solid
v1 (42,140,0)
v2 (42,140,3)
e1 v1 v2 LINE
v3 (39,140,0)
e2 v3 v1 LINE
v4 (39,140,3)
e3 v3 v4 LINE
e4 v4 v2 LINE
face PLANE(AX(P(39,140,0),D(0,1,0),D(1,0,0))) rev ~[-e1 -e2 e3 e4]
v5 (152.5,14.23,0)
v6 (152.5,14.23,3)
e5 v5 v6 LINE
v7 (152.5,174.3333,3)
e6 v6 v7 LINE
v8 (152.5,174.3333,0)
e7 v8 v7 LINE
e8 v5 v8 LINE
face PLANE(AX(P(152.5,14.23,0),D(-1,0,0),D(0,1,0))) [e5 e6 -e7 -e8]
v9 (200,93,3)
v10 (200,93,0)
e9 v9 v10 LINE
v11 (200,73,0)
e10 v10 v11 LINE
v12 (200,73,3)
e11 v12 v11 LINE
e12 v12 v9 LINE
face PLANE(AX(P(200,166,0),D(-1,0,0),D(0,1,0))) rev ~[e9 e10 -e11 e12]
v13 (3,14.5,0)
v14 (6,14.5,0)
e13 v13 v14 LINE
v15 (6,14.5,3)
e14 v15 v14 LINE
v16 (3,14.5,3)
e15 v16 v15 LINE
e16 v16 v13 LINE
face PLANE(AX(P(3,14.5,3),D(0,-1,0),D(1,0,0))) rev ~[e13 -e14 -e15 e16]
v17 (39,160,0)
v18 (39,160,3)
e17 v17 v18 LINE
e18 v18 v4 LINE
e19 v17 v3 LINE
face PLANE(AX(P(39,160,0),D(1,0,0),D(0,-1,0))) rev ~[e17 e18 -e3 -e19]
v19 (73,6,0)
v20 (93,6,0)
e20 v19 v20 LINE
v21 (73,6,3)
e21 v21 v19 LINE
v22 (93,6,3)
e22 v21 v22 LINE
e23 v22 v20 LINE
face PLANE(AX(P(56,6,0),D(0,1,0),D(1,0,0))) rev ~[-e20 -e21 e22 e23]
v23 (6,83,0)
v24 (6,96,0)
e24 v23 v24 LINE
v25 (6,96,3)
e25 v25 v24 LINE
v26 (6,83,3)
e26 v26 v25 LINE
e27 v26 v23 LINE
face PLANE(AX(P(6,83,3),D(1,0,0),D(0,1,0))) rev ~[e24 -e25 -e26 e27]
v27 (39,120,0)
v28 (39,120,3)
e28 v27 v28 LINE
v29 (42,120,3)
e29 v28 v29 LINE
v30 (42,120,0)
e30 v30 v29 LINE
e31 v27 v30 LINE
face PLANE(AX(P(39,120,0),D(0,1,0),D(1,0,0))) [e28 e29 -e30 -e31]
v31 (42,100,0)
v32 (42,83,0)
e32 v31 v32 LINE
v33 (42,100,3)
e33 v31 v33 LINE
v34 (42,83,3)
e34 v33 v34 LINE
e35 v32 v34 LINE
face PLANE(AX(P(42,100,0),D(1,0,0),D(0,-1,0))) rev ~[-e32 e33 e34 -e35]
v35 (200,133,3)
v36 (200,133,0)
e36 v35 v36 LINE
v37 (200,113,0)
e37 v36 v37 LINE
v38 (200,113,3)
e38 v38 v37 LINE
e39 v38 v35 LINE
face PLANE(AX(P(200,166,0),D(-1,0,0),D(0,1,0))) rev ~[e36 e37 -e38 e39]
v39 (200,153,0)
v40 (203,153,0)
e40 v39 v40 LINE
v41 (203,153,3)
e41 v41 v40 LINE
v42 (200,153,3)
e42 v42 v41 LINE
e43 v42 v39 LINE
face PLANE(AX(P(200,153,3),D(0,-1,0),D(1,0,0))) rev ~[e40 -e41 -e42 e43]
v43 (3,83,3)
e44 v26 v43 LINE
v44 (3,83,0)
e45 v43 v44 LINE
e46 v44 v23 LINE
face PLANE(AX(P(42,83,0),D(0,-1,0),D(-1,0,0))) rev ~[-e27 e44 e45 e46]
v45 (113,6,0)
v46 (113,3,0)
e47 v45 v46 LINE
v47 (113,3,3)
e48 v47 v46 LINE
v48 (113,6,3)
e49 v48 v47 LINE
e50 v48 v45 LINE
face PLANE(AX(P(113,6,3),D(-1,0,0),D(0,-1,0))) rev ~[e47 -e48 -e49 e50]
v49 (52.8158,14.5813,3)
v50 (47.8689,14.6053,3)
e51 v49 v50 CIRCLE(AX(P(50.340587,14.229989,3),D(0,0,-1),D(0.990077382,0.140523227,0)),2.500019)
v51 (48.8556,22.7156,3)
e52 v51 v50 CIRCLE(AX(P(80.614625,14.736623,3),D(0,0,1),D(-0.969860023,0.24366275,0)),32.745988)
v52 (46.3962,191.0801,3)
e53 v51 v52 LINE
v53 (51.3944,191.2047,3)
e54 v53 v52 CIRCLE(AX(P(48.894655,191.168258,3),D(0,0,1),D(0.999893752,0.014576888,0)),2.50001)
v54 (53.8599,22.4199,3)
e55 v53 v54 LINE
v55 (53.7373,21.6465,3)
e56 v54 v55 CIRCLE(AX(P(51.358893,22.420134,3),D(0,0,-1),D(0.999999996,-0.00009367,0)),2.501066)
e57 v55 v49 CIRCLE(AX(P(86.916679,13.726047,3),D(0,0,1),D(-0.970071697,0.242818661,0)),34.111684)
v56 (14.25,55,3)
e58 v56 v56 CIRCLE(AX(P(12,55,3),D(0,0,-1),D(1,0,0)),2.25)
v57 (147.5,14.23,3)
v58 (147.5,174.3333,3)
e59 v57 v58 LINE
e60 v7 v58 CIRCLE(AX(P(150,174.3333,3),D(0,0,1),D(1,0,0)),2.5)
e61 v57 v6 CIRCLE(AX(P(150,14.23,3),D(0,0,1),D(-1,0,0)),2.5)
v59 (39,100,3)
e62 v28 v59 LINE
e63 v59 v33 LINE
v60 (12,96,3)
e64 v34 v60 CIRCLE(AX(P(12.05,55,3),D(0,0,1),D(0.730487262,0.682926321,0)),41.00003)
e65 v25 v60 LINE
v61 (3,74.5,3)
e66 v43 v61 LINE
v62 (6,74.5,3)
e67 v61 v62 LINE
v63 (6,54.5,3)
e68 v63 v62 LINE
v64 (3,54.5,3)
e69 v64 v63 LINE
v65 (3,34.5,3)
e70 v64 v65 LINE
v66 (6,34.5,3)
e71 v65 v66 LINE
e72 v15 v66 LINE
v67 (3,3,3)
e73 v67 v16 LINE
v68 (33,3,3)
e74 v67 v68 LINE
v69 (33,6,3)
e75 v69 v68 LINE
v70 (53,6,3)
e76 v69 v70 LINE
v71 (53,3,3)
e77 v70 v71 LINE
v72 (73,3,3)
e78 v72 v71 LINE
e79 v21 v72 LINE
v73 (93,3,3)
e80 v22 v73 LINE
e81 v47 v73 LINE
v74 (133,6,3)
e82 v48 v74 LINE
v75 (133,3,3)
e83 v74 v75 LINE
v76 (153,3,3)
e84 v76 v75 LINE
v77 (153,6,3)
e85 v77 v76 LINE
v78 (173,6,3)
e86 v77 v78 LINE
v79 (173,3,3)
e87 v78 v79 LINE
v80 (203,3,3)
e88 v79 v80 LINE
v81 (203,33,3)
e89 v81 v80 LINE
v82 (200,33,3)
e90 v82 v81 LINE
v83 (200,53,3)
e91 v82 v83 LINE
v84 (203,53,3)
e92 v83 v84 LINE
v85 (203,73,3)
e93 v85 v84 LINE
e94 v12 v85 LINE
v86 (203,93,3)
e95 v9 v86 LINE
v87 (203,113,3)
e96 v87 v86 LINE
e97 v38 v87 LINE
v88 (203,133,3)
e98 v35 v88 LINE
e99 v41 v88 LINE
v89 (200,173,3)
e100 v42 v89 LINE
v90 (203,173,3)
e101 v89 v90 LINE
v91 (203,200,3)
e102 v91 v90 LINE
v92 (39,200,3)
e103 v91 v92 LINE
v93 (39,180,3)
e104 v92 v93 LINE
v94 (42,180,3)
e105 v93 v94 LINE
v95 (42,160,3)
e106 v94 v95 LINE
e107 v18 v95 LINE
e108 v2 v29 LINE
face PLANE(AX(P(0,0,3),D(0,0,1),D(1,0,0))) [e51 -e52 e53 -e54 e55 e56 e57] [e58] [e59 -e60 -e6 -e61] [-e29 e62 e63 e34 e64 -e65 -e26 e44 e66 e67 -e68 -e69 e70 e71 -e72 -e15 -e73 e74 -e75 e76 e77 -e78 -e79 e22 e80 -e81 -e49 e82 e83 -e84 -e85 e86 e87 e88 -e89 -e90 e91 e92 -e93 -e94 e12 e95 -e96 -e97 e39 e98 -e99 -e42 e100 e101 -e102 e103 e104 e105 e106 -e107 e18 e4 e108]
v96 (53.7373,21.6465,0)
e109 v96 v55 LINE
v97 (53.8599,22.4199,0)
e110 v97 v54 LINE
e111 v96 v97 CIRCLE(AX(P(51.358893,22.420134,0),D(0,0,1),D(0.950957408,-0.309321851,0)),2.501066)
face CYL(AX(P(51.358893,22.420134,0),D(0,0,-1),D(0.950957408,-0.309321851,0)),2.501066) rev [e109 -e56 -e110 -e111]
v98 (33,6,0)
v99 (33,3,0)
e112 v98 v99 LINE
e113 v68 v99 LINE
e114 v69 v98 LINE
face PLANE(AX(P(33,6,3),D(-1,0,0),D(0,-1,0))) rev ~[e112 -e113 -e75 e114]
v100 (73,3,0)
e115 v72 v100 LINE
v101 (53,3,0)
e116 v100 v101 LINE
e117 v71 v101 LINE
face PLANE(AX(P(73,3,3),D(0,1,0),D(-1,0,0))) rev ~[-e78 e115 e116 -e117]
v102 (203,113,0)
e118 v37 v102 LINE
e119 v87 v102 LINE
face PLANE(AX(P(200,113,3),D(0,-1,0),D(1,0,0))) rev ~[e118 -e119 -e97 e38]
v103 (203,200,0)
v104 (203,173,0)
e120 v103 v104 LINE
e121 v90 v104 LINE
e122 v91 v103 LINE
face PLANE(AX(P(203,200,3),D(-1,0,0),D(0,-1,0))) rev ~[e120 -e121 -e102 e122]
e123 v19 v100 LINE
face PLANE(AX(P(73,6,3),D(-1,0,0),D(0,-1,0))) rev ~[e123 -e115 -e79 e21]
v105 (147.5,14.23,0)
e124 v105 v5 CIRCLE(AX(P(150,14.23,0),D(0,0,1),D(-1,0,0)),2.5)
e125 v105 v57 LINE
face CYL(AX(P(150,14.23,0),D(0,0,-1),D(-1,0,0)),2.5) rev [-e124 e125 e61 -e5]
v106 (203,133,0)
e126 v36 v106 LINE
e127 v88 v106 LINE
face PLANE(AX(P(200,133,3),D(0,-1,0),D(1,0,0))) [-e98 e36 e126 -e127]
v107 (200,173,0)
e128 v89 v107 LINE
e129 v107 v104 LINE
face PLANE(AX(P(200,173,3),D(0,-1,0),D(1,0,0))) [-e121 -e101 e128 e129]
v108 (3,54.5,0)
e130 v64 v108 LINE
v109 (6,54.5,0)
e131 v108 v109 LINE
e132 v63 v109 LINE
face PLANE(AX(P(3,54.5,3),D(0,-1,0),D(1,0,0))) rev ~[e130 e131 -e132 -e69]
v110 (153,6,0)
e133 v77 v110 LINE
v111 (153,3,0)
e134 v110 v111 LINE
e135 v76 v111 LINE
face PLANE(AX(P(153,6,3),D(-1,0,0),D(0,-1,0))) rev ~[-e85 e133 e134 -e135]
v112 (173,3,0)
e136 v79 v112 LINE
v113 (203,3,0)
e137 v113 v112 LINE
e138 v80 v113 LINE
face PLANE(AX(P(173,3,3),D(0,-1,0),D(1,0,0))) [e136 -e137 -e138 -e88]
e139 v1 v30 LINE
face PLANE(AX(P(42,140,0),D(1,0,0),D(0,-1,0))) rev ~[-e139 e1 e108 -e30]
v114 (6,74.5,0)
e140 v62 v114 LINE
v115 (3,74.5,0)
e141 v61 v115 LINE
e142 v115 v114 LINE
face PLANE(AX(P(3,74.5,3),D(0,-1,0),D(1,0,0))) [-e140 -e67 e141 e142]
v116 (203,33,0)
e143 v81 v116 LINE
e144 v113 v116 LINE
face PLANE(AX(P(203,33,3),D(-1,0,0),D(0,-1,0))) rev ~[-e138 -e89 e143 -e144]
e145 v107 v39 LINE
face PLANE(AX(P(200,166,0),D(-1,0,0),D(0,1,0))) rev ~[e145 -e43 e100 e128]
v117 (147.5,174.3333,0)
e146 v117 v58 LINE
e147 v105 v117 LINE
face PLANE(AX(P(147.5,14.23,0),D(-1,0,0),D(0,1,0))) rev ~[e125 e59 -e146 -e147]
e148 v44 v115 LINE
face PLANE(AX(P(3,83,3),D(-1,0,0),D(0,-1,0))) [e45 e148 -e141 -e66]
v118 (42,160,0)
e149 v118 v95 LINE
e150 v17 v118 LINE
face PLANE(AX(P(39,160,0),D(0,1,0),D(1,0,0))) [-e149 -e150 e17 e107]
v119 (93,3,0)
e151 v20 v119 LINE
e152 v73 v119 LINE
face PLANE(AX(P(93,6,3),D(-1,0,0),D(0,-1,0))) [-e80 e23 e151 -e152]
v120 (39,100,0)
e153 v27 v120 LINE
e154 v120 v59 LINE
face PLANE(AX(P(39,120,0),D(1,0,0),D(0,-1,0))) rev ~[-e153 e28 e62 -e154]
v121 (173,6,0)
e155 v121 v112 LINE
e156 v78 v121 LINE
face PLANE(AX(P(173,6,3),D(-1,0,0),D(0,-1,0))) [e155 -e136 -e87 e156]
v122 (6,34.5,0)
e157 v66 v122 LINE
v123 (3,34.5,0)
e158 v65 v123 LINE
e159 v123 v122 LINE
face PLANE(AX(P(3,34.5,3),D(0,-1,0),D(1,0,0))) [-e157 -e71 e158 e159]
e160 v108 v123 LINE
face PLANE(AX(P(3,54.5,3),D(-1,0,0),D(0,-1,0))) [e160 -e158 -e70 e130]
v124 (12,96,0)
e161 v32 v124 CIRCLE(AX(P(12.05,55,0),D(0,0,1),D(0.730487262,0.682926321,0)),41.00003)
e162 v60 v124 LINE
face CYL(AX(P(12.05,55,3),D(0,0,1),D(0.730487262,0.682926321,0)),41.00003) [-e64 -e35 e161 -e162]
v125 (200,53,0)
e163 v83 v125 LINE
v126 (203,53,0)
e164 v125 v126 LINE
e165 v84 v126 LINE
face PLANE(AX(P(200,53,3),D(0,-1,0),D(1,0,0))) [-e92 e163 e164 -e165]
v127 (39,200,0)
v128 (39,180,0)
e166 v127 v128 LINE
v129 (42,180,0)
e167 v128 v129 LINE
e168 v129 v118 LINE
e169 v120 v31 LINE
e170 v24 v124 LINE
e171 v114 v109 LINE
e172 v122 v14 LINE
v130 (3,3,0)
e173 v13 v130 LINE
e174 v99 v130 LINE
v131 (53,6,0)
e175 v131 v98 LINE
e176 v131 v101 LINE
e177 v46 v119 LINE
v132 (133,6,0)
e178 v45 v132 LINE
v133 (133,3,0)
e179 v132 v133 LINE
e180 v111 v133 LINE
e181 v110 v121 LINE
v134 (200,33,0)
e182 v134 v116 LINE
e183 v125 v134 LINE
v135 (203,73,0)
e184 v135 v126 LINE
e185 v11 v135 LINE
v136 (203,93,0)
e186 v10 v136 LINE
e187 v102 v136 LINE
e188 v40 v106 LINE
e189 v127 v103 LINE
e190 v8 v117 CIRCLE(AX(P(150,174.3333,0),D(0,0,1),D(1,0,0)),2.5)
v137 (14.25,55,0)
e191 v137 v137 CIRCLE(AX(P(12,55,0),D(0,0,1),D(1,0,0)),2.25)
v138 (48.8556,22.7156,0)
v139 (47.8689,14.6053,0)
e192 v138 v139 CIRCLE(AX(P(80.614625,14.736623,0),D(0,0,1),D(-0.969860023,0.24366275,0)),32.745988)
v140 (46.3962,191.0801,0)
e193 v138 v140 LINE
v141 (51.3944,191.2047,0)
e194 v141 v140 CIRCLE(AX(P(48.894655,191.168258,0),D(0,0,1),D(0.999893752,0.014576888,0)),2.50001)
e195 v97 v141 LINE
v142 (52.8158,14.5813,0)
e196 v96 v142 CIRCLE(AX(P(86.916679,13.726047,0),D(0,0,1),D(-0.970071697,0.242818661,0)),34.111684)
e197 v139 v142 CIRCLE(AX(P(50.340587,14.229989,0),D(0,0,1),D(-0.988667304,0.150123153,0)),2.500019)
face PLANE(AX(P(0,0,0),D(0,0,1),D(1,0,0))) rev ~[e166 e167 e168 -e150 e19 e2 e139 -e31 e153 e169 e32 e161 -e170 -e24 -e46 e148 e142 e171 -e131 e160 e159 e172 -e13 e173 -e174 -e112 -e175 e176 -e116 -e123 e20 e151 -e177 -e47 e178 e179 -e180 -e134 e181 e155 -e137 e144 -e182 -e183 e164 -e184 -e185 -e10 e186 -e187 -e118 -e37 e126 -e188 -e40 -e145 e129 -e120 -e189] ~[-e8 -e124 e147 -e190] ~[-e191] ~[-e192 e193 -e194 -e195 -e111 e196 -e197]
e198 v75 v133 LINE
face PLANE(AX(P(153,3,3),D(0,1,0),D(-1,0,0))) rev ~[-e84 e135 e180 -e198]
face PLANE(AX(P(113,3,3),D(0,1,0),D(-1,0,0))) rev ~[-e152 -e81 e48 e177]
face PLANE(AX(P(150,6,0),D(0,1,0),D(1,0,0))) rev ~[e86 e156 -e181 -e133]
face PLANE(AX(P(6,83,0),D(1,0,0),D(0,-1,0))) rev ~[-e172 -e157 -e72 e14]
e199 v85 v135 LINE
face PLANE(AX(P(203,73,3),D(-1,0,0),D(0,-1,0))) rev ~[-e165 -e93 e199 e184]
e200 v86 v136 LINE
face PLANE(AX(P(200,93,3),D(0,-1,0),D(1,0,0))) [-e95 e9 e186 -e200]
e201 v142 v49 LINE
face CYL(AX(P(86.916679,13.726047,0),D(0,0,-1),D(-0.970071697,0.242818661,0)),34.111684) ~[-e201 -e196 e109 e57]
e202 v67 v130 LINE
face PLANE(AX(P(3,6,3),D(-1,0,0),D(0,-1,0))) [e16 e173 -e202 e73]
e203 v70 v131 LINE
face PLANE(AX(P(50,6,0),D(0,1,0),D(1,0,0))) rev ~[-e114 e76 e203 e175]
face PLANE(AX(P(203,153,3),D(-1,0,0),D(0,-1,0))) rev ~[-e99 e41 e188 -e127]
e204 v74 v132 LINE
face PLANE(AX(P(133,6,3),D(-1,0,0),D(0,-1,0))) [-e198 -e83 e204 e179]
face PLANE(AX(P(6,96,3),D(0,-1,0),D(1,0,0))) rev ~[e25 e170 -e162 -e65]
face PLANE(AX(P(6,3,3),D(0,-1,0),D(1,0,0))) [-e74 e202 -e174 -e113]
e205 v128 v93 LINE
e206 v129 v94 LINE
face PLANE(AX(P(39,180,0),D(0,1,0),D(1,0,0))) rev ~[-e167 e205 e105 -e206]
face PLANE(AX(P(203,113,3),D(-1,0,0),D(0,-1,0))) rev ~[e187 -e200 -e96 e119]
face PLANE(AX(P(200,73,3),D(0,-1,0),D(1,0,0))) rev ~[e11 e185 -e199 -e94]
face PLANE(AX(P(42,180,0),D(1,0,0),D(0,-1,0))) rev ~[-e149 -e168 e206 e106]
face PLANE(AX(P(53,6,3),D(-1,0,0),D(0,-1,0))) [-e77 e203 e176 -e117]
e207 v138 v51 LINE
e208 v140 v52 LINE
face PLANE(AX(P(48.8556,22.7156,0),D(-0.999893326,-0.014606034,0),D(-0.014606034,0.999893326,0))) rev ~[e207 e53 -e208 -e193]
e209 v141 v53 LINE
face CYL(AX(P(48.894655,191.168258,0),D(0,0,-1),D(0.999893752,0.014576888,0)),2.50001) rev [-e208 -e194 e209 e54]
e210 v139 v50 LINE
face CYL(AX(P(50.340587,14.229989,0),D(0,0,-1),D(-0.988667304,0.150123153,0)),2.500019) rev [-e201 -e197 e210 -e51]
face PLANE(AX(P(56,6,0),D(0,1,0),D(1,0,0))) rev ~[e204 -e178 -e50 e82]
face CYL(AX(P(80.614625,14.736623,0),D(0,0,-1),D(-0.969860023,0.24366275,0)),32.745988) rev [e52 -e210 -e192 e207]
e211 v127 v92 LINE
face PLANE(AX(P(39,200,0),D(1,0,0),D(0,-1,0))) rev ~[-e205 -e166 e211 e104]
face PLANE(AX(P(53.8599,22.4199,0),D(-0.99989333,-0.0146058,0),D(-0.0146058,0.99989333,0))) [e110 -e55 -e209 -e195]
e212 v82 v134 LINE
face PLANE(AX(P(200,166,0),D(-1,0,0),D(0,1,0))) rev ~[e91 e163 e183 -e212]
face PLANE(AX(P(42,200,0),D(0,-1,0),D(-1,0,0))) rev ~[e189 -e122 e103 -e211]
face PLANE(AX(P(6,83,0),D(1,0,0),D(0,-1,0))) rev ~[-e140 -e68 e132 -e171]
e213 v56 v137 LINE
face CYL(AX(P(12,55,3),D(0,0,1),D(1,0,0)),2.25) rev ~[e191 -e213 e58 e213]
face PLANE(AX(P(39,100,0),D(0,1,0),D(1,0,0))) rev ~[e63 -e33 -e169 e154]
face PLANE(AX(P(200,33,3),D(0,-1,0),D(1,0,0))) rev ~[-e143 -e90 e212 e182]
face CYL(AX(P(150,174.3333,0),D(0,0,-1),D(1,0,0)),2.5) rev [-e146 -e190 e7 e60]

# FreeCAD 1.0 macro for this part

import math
import FreeCAD as App
import Part
import Sketcher
Q = App.Units.Quantity


def add_polygon(sketch, points):
    """Adds a closed chain of lines whose ends are joined by coincident constraints."""
    first, n = sketch.GeometryCount, len(points)
    for a, b in zip(points, points[1:] + points[:1]):
        sketch.addGeometry(Part.LineSegment(App.Vector(*a, 0), App.Vector(*b, 0)), False)
    for i in range(n):
        sketch.addConstraint(Sketcher.Constraint("Coincident", first + i, 2, first + (i + 1) % n, 1))

doc = App.newDocument("Part")
body = doc.addObject("PartDesign::Body", "Body")

# Sketch on XY plane
sketch1 = doc.addObject("Sketcher::SketchObject", "Sketch")
body.addObject(sketch1)
sketch1.AttachmentSupport = (doc.XY_Plane, [""])
sketch1.MapMode = "FlatFace"
add_polygon(sketch1, [(6, 83), (6, 6), (200, 6), (200, 200), (39, 200), (39, 180), (42, 180), (42, 160), (39, 160), (39, 140), (42, 140), (42, 120), (39, 120), (39, 100), (42, 100), (42, 83)])  # lines 0-15
sketch1.addGeometry(Part.ArcOfCircle(Part.Circle(App.Vector(50.3, 14.2, 0), App.Vector(0, 0, 1), 2.5), math.radians(171), math.radians(368)), False)  # 16
sketch1.addGeometry(Part.ArcOfCircle(Part.Circle(App.Vector(80.6, 14.7, 0), App.Vector(0, 0, 1), 32.7), math.radians(165.9), math.radians(180.23)), False)  # 17
sketch1.addGeometry(Part.LineSegment(App.Vector(48.9, 22.7, 0), App.Vector(46.4, 191.1, 0)), False)  # 18
sketch1.addGeometry(Part.ArcOfCircle(Part.Circle(App.Vector(48.9, 191.2, 0), App.Vector(0, 0, 1), 2.5), math.radians(1), math.radians(182)), False)  # 19
sketch1.addGeometry(Part.LineSegment(App.Vector(51.4, 191.2, 0), App.Vector(53.9, 22.4, 0)), False)  # 20
sketch1.addGeometry(Part.ArcOfCircle(Part.Circle(App.Vector(51.4, 22.4, 0), App.Vector(0, 0, 1), 2.5), math.radians(-18.02), math.radians(-0.01)), False)  # 21
sketch1.addGeometry(Part.ArcOfCircle(Part.Circle(App.Vector(86.9, 13.7, 0), App.Vector(0, 0, 1), 34.1), math.radians(166.57), math.radians(178.56)), False)  # 22
sketch1.addGeometry(Part.ArcOfCircle(Part.Circle(App.Vector(150, 174.3, 0), App.Vector(0, 0, 1), 2.5), math.radians(0), math.radians(180)), False)  # 23
sketch1.addGeometry(Part.LineSegment(App.Vector(152.5, 174.3, 0), App.Vector(152.5, 14.2, 0)), False)  # 24
sketch1.addGeometry(Part.ArcOfCircle(Part.Circle(App.Vector(150, 14.2, 0), App.Vector(0, 0, 1), 2.5), math.radians(180), math.radians(360)), False)  # 25
sketch1.addGeometry(Part.LineSegment(App.Vector(147.5, 14.2, 0), App.Vector(147.5, 174.3, 0)), False)  # 26
sketch1.addConstraint([
    Sketcher.Constraint("Coincident", 16, 1, 17, 2),
    Sketcher.Constraint("Coincident", 17, 1, 18, 1),
    Sketcher.Constraint("Coincident", 18, 2, 19, 2),
    Sketcher.Constraint("Tangent", 19, 1, 20, 1),
    Sketcher.Constraint("Coincident", 20, 2, 21, 2),
    Sketcher.Constraint("Coincident", 21, 1, 22, 1),
    Sketcher.Constraint("Coincident", 22, 2, 16, 2),
    Sketcher.Constraint("Tangent", 23, 1, 24, 1),
    Sketcher.Constraint("Tangent", 24, 2, 25, 2),
    Sketcher.Constraint("Tangent", 25, 1, 26, 1),
    Sketcher.Constraint("Tangent", 26, 2, 23, 2),
    Sketcher.Constraint("Vertical", 0),
    Sketcher.Constraint("Horizontal", 1),
    Sketcher.Constraint("Vertical", 2),
    Sketcher.Constraint("Horizontal", 3),
    Sketcher.Constraint("Vertical", 4),
    Sketcher.Constraint("Horizontal", 5),
    Sketcher.Constraint("Vertical", 6),
    Sketcher.Constraint("Horizontal", 7),
    Sketcher.Constraint("Vertical", 8),
    Sketcher.Constraint("Horizontal", 9),
    Sketcher.Constraint("Vertical", 10),
    Sketcher.Constraint("Horizontal", 11),
    Sketcher.Constraint("Vertical", 12),
    Sketcher.Constraint("Horizontal", 13),
    Sketcher.Constraint("Vertical", 14),
    Sketcher.Constraint("Horizontal", 15),
    Sketcher.Constraint("Vertical", 24),
    Sketcher.Constraint("Vertical", 26),
    Sketcher.Constraint("Equal", 16, 19),
    Sketcher.Constraint("Equal", 19, 23),
    Sketcher.Constraint("Parallel", 18, 20),
    Sketcher.Constraint("Horizontal", 16, 3, 25, 3),
    Sketcher.Constraint("Vertical", 4, 2, 7, 2),
    Sketcher.Constraint("Vertical", 6, 2, 9, 2),
    Sketcher.Constraint("Vertical", 8, 2, 11, 2),
    Sketcher.Constraint("Vertical", 10, 2, 13, 2),
    Sketcher.Constraint("Equal", 1, 2),
    Sketcher.Constraint("Equal", 4, 6),
    Sketcher.Constraint("Equal", 6, 8),
    Sketcher.Constraint("Equal", 8, 10),
    Sketcher.Constraint("Equal", 10, 12),
    Sketcher.Constraint("DistanceX", 1, 1, 1, 2, Q("194 mm")),
    Sketcher.Constraint("Radius", 16, Q("2.5 mm")),
    Sketcher.Constraint("DistanceX", 3, 2, 3, 1, Q("161 mm")),
    Sketcher.Constraint("DistanceX", 5, 1, 5, 2, Q("3 mm")),
    Sketcher.Constraint("DistanceY", 0, 2, 0, 1, Q("77 mm")),
    Sketcher.Constraint("DistanceY", 4, 2, 4, 1, Q("20 mm")),
    Sketcher.Constraint("DistanceX", -1, 1, 23, 3, Q("150 mm")),
    Sketcher.Constraint("DistanceX", -1, 1, 0, 2, Q("6 mm")),
    Sketcher.Constraint("DistanceY", -1, 1, 0, 2, Q("6 mm")),
    Sketcher.Constraint("Radius", 17, Q("32.746 mm")),
    Sketcher.Constraint("Radius", 21, Q("2.501 mm")),
    Sketcher.Constraint("Radius", 22, Q("34.1117 mm")),
    Sketcher.Constraint("DistanceY", -1, 1, 16, 3, Q("14.23 mm")),
    Sketcher.Constraint("DistanceY", -1, 1, 18, 2, Q("191.08 mm")),
    Sketcher.Constraint("DistanceX", -1, 1, 20, 2, Q("53.86 mm")),
    Sketcher.Constraint("DistanceY", -1, 1, 20, 2, Q("22.42 mm")),
    Sketcher.Constraint("DistanceX", 19, 3, 17, 3, Q("31.72 mm")),
    Sketcher.Constraint("DistanceX", 16, 1, 21, 3, Q("3.49 mm")),
    Sketcher.Constraint("DistanceY", 24, 2, 24, 1, Q("160.1033 mm")),
    Sketcher.Constraint("DistanceY", -1, 1, 22, 3, Q("13.726 mm")),
    Sketcher.Constraint("DistanceX", 16, 3, 17, 3, Q("30.274 mm")),
    Sketcher.Constraint("DistanceY", 21, 3, 19, 3, Q("168.748 mm")),
    Sketcher.Constraint("DistanceX", 17, 3, 22, 3, Q("6.302 mm")),
    Sketcher.Constraint("DistanceY", 22, 3, 21, 3, Q("8.694 mm")),
    Sketcher.Constraint("DistanceY", 21, 1, 17, 1, Q("1.069 mm")),
])
pad1 = doc.addObject("PartDesign::Pad", "Pad")
body.addObject(pad1)
pad1.Profile = sketch1
pad1.Length = 3

# Sketch on XY plane
sketch2 = doc.addObject("Sketcher::SketchObject", "Sketch001")
body.addObject(sketch2)
sketch2.AttachmentSupport = (doc.XY_Plane, [""])
sketch2.MapMode = "FlatFace"
sketch2.AttachmentOffset = App.Placement(App.Vector(0, 0, 3), App.Rotation())
add_polygon(sketch2, [(200, 3), (200, 6), (173, 6), (173, 3)])  # lines 0-3
add_polygon(sketch2, [(153, 3), (153, 6), (133, 6), (133, 3)])  # lines 4-7
add_polygon(sketch2, [(113, 3), (113, 6), (93, 6), (93, 3)])  # lines 8-11
add_polygon(sketch2, [(73, 3), (73, 6), (53, 6), (53, 3)])  # lines 12-15
add_polygon(sketch2, [(33, 3), (33, 6), (6, 6), (6, 3)])  # lines 16-19
sketch2.addConstraint([
    Sketcher.Constraint("Vertical", 0),
    Sketcher.Constraint("Horizontal", 1),
    Sketcher.Constraint("Vertical", 2),
    Sketcher.Constraint("Horizontal", 3),
    Sketcher.Constraint("Vertical", 4),
    Sketcher.Constraint("Horizontal", 5),
    Sketcher.Constraint("Vertical", 6),
    Sketcher.Constraint("Horizontal", 7),
    Sketcher.Constraint("Vertical", 8),
    Sketcher.Constraint("Horizontal", 9),
    Sketcher.Constraint("Vertical", 10),
    Sketcher.Constraint("Horizontal", 11),
    Sketcher.Constraint("Vertical", 12),
    Sketcher.Constraint("Horizontal", 13),
    Sketcher.Constraint("Vertical", 14),
    Sketcher.Constraint("Horizontal", 15),
    Sketcher.Constraint("Vertical", 16),
    Sketcher.Constraint("Horizontal", 17),
    Sketcher.Constraint("Vertical", 18),
    Sketcher.Constraint("Horizontal", 19),
    Sketcher.Constraint("Horizontal", 1, 2, 4, 2),
    Sketcher.Constraint("Horizontal", 3, 2, 6, 2),
    Sketcher.Constraint("Horizontal", 5, 2, 8, 2),
    Sketcher.Constraint("Horizontal", 7, 2, 10, 2),
    Sketcher.Constraint("Horizontal", 9, 2, 12, 2),
    Sketcher.Constraint("Horizontal", 11, 2, 14, 2),
    Sketcher.Constraint("Horizontal", 13, 2, 16, 2),
    Sketcher.Constraint("Horizontal", 15, 2, 18, 2),
    Sketcher.Constraint("Equal", 7, 9),
    Sketcher.Constraint("Equal", 11, 13),
    Sketcher.Constraint("Equal", 3, 17),
    Sketcher.Constraint("DistanceX", 1, 2, 1, 1, Q("27 mm")),
    Sketcher.Constraint("DistanceX", 5, 2, 5, 1, Q("20 mm")),
    Sketcher.Constraint("DistanceY", 0, 1, 0, 2, Q("3 mm")),
    Sketcher.Constraint("DistanceX", -1, 1, 0, 2, Q("200 mm")),
    Sketcher.Constraint("DistanceY", -1, 1, 0, 2, Q("6 mm")),
    Sketcher.Constraint("DistanceX", -1, 1, 4, 2, Q("153 mm")),
    Sketcher.Constraint("DistanceX", -1, 1, 8, 2, Q("113 mm")),
    Sketcher.Constraint("DistanceX", -1, 1, 12, 2, Q("73 mm")),
    Sketcher.Constraint("DistanceX", -1, 1, 16, 2, Q("33 mm")),
])
pad2 = doc.addObject("PartDesign::Pad", "Pad001")
body.addObject(pad2)
pad2.Profile = sketch2
pad2.Length = 3
pad2.Reversed = True

# Sketch on XY plane
sketch3 = doc.addObject("Sketcher::SketchObject", "Sketch002")
body.addObject(sketch3)
sketch3.AttachmentSupport = (doc.XY_Plane, [""])
sketch3.MapMode = "FlatFace"
sketch3.AttachmentOffset = App.Placement(App.Vector(0, 0, 3), App.Rotation())
add_polygon(sketch3, [(3, 3), (6, 3), (6, 14.5), (3, 14.5)])  # lines 0-3
add_polygon(sketch3, [(6, 74.5), (6, 83), (3, 83), (3, 74.5)])  # lines 4-7
add_polygon(sketch3, [(3, 34.5), (6, 34.5), (6, 54.5), (3, 54.5)])  # lines 8-11
sketch3.addConstraint([
    Sketcher.Constraint("Horizontal", 0),
    Sketcher.Constraint("Vertical", 1),
    Sketcher.Constraint("Horizontal", 2),
    Sketcher.Constraint("Vertical", 3),
    Sketcher.Constraint("Vertical", 4),
    Sketcher.Constraint("Horizontal", 5),
    Sketcher.Constraint("Vertical", 6),
    Sketcher.Constraint("Horizontal", 7),
    Sketcher.Constraint("Horizontal", 8),
    Sketcher.Constraint("Vertical", 9),
    Sketcher.Constraint("Horizontal", 10),
    Sketcher.Constraint("Vertical", 11),
    Sketcher.Constraint("Vertical", 1, 2, 4, 2),
    Sketcher.Constraint("Vertical", 3, 2, 5, 2),
    Sketcher.Constraint("Vertical", 7, 2, 8, 2),
    Sketcher.Constraint("Vertical", 6, 2, 10, 2),
    Sketcher.Constraint("DistanceX", 0, 1, 0, 2, Q("3 mm")),
    Sketcher.Constraint("DistanceY", -1, 1, 0, 2, Q("3 mm")),
    Sketcher.Constraint("DistanceX", -1, 1, 2, 2, Q("3 mm")),
    Sketcher.Constraint("DistanceY", 9, 1, 9, 2, Q("20 mm")),
    Sketcher.Constraint("DistanceY", 1, 1, 1, 2, Q("11.5 mm")),
    Sketcher.Constraint("DistanceY", 4, 1, 4, 2, Q("8.5 mm")),
    Sketcher.Constraint("DistanceY", -1, 1, 4, 2, Q("83 mm")),
    Sketcher.Constraint("DistanceY", 1, 2, 8, 2, Q("20 mm")),
])
pad3 = doc.addObject("PartDesign::Pad", "Pad002")
body.addObject(pad3)
pad3.Profile = sketch3
pad3.Length = 3
pad3.Reversed = True

# Sketch on XY plane
sketch4 = doc.addObject("Sketcher::SketchObject", "Sketch003")
body.addObject(sketch4)
sketch4.AttachmentSupport = (doc.XY_Plane, [""])
sketch4.MapMode = "FlatFace"
sketch4.AttachmentOffset = App.Placement(App.Vector(0, 0, 3), App.Rotation())
add_polygon(sketch4, [(200, 33), (200, 3), (203, 3), (203, 33)])  # lines 0-3
add_polygon(sketch4, [(200, 73), (200, 53), (203, 53), (203, 73)])  # lines 4-7
add_polygon(sketch4, [(200, 113), (200, 93), (203, 93), (203, 113)])  # lines 8-11
add_polygon(sketch4, [(200, 153), (200, 133), (203, 133), (203, 153)])  # lines 12-15
add_polygon(sketch4, [(200, 200), (200, 173), (203, 173), (203, 200)])  # lines 16-19
sketch4.addConstraint([
    Sketcher.Constraint("Vertical", 0),
    Sketcher.Constraint("Horizontal", 1),
    Sketcher.Constraint("Vertical", 2),
    Sketcher.Constraint("Horizontal", 3),
    Sketcher.Constraint("Vertical", 4),
    Sketcher.Constraint("Horizontal", 5),
    Sketcher.Constraint("Vertical", 6),
    Sketcher.Constraint("Horizontal", 7),
    Sketcher.Constraint("Vertical", 8),
    Sketcher.Constraint("Horizontal", 9),
    Sketcher.Constraint("Vertical", 10),
    Sketcher.Constraint("Horizontal", 11),
    Sketcher.Constraint("Vertical", 12),
    Sketcher.Constraint("Horizontal", 13),
    Sketcher.Constraint("Vertical", 14),
    Sketcher.Constraint("Horizontal", 15),
    Sketcher.Constraint("Vertical", 16),
    Sketcher.Constraint("Horizontal", 17),
    Sketcher.Constraint("Vertical", 18),
    Sketcher.Constraint("Horizontal", 19),
    Sketcher.Constraint("Vertical", 3, 2, 4, 2),
    Sketcher.Constraint("Vertical", 2, 2, 5, 2),
    Sketcher.Constraint("Vertical", 7, 2, 8, 2),
    Sketcher.Constraint("Vertical", 6, 2, 9, 2),
    Sketcher.Constraint("Vertical", 11, 2, 12, 2),
    Sketcher.Constraint("Vertical", 10, 2, 13, 2),
    Sketcher.Constraint("Vertical", 15, 2, 16, 2),
    Sketcher.Constraint("Vertical", 14, 2, 17, 2),
    Sketcher.Constraint("Equal", 6, 8),
    Sketcher.Constraint("Equal", 10, 12),
    Sketcher.Constraint("DistanceX", 1, 1, 1, 2, Q("3 mm")),
    Sketcher.Constraint("DistanceY", 0, 2, 0, 1, Q("30 mm")),
    Sketcher.Constraint("DistanceY", 4, 2, 4, 1, Q("20 mm")),
    Sketcher.Constraint("DistanceY", 16, 2, 16, 1, Q("27 mm")),
    Sketcher.Constraint("DistanceX", -1, 1, 0, 2, Q("200 mm")),
    Sketcher.Constraint("DistanceY", -1, 1, 0, 2, Q("3 mm")),
    Sketcher.Constraint("DistanceY", -1, 1, 4, 2, Q("53 mm")),
    Sketcher.Constraint("DistanceY", -1, 1, 8, 2, Q("93 mm")),
    Sketcher.Constraint("DistanceY", -1, 1, 12, 2, Q("133 mm")),
    Sketcher.Constraint("DistanceY", -1, 1, 16, 2, Q("173 mm")),
])
pad4 = doc.addObject("PartDesign::Pad", "Pad003")
body.addObject(pad4)
pad4.Profile = sketch4
pad4.Length = 3
pad4.Reversed = True

# Sketch on XY plane
sketch5 = doc.addObject("Sketcher::SketchObject", "Sketch004")
body.addObject(sketch5)
sketch5.AttachmentSupport = (doc.XY_Plane, [""])
sketch5.MapMode = "FlatFace"
sketch5.AttachmentOffset = App.Placement(App.Vector(0, 0, 3), App.Rotation())
sketch5.addGeometry(Part.Circle(App.Vector(12, 55, 0), App.Vector(0, 0, 1), 2.2), False)
sketch5.addConstraint([
    Sketcher.Constraint("Diameter", 0, Q("4.5 mm")),
    Sketcher.Constraint("DistanceX", -1, 1, 0, 3, Q("12 mm")),
    Sketcher.Constraint("DistanceY", -1, 1, 0, 3, Q("55 mm")),
])
pocket1 = doc.addObject("PartDesign::Pocket", "Pocket")
body.addObject(pocket1)
pocket1.Profile = sketch5
pocket1.Length = 3

# Sketch on XY plane
sketch6 = doc.addObject("Sketcher::SketchObject", "Sketch005")
body.addObject(sketch6)
sketch6.AttachmentSupport = (doc.XY_Plane, [""])
sketch6.MapMode = "FlatFace"
sketch6.AttachmentOffset = App.Placement(App.Vector(0, 0, 3), App.Rotation())
sketch6.addGeometry([
    Part.ArcOfCircle(Part.Circle(App.Vector(12, 55, 0), App.Vector(0, 0, 1), 41), math.radians(43), math.radians(90)),
    Part.LineSegment(App.Vector(12, 96, 0), App.Vector(6, 96, 0)),
    Part.LineSegment(App.Vector(6, 96, 0), App.Vector(6, 83, 0)),
    Part.LineSegment(App.Vector(6, 83, 0), App.Vector(42, 83, 0)),
], False)
sketch6.addConstraint([
    Sketcher.Constraint("Coincident", 0, 2, 1, 1),
    Sketcher.Constraint("Coincident", 1, 2, 2, 1),
    Sketcher.Constraint("Coincident", 2, 2, 3, 1),
    Sketcher.Constraint("Coincident", 3, 2, 0, 1),
    Sketcher.Constraint("Horizontal", 1),
    Sketcher.Constraint("Vertical", 2),
    Sketcher.Constraint("Horizontal", 3),
    Sketcher.Constraint("Radius", 0, Q("41 mm")),
    Sketcher.Constraint("DistanceY", 2, 2, 2, 1, Q("13 mm")),
    Sketcher.Constraint("DistanceX", 1, 2, 1, 1, Q("6 mm")),
    Sketcher.Constraint("DistanceX", 3, 1, 3, 2, Q("36 mm")),
    Sketcher.Constraint("DistanceY", -1, 1, 0, 3, Q("55 mm")),
    Sketcher.Constraint("DistanceX", -1, 1, 0, 2, Q("12 mm")),
])
pad5 = doc.addObject("PartDesign::Pad", "Pad004")
body.addObject(pad5)
pad5.Profile = sketch6
pad5.Length = 3
pad5.Reversed = True

doc.recompute()
